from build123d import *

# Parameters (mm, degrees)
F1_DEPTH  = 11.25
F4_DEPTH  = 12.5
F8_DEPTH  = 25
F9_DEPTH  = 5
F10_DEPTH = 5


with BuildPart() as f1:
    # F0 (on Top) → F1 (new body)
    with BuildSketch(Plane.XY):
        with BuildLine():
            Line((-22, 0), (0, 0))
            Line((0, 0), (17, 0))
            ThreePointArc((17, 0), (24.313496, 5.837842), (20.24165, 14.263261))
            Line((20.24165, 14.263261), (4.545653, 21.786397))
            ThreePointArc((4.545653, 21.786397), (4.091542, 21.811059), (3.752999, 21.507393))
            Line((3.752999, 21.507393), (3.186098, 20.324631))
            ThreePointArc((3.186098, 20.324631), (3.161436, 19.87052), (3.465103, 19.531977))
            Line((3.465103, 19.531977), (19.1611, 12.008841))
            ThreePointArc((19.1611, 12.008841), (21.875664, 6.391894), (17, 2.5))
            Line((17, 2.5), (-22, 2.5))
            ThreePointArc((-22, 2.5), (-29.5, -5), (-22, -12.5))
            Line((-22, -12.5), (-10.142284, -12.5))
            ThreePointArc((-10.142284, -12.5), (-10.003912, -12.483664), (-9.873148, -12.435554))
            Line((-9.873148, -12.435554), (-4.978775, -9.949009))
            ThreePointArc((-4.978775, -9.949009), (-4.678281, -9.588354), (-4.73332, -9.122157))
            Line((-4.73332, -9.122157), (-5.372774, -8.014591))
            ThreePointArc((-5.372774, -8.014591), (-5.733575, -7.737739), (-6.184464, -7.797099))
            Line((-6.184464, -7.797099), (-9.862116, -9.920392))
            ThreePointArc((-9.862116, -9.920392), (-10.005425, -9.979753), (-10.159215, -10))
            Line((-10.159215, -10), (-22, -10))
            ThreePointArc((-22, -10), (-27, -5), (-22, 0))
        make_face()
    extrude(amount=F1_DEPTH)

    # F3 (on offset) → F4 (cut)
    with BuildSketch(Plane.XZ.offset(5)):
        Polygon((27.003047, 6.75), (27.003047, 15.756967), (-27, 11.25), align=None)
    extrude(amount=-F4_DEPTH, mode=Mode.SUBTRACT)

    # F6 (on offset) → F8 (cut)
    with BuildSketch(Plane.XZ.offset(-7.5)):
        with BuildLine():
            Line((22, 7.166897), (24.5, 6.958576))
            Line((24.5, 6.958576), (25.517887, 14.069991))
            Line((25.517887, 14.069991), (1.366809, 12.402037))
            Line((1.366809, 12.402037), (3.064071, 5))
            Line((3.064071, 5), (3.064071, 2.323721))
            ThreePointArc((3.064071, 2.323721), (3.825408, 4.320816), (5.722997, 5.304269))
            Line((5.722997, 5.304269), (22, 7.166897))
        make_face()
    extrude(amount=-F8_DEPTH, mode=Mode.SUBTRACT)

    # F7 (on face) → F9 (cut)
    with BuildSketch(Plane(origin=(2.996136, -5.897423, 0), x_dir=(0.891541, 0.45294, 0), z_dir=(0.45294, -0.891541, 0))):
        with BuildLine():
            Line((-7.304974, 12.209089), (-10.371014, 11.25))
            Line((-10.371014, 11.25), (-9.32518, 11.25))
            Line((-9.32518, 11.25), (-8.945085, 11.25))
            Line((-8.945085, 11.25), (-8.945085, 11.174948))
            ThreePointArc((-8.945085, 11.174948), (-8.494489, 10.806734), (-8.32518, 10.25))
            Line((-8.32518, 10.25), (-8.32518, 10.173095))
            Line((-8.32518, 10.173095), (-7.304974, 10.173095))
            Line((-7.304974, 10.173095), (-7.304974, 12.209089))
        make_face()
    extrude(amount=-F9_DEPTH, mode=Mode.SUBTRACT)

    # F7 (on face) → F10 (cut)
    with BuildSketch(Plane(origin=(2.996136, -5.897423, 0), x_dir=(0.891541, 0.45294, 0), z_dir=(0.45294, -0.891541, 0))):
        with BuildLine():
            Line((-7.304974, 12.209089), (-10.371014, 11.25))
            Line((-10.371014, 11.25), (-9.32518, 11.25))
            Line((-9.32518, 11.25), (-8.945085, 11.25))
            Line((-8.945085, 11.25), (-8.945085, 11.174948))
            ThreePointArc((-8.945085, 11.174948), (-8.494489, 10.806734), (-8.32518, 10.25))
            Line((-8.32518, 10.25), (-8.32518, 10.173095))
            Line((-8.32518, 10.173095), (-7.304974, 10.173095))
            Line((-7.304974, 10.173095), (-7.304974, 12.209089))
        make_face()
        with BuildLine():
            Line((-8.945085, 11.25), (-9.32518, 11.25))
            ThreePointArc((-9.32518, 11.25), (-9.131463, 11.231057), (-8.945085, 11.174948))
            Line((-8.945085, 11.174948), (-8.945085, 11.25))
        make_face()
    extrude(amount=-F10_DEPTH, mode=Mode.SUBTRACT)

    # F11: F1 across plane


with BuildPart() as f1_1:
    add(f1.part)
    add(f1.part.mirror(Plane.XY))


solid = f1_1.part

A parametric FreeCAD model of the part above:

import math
import FreeCAD as App
import Part
import Sketcher
Q = App.Units.Quantity


def add_polygon(sketch, points):
    """Adds a closed chain of lines whose ends are joined by coincident constraints."""
    first, n = sketch.GeometryCount, len(points)
    for a, b in zip(points, points[1:] + points[:1]):
        sketch.addGeometry(Part.LineSegment(App.Vector(*a, 0), App.Vector(*b, 0)), False)
    for i in range(n):
        sketch.addConstraint(Sketcher.Constraint("Coincident", first + i, 2, first + (i + 1) % n, 1))

doc = App.newDocument("Part")
body = doc.addObject("PartDesign::Body", "Body")

sketch1 = doc.addObject("Sketcher::SketchObject", "Sketch")
body.addObject(sketch1)
sketch1.AttachmentSupport = (doc.XY_Plane, [""])
sketch1.MapMode = "FlatFace"
sketch1.addGeometry([
    Part.LineSegment(App.Vector(-22, 0, 0), App.Vector(17, 0, 0)),
    Part.ArcOfCircle(Part.Circle(App.Vector(17, 7.5, 0), App.Vector(0, 0, 1), 7.5), math.radians(-89.999997), math.radians(64.391467)),
    Part.LineSegment(App.Vector(20.24165, 14.263261, 0), App.Vector(4.545653, 21.786397, 0)),
    Part.ArcOfCircle(Part.Circle(App.Vector(4.288828, 21.250568, 0), App.Vector(0, 0, 1), 0.594198), math.radians(64.391387), math.radians(154.391437)),
    Part.LineSegment(App.Vector(3.752999, 21.507393, 0), App.Vector(3.186098, 20.324631, 0)),
    Part.ArcOfCircle(Part.Circle(App.Vector(3.721926, 20.067806, 0), App.Vector(0, 0, 1), 0.594197), math.radians(154.391357), math.radians(244.391595)),
    Part.LineSegment(App.Vector(3.465103, 19.531977, 0), App.Vector(19.1611, 12.008841, 0)),
    Part.ArcOfCircle(Part.Circle(App.Vector(17, 7.5, 0), App.Vector(0, 0, 1), 5), math.radians(-89.999997), math.radians(64.391468)),
    Part.LineSegment(App.Vector(17, 2.5, 0), App.Vector(-22, 2.5, 0)),
    Part.ArcOfCircle(Part.Circle(App.Vector(-22, -5, 0), App.Vector(0, 0, 1), 7.5), math.radians(90), math.radians(270)),
    Part.LineSegment(App.Vector(-22, -12.5, 0), App.Vector(-10.142284, -12.5, 0)),
    Part.ArcOfCircle(Part.Circle(App.Vector(-10.142284, -11.905802, 0), App.Vector(0, 0, 1), 0.594198), math.radians(-90.000008), math.radians(-63.067568)),
    Part.LineSegment(App.Vector(-9.873148, -12.435554, 0), App.Vector(-4.978775, -9.949009, 0)),
    Part.ArcOfCircle(Part.Circle(App.Vector(-5.24791, -9.419257, 0), App.Vector(0, 0, 1), 0.594198), math.radians(-63.067632), math.radians(30.000082)),
    Part.LineSegment(App.Vector(-4.73332, -9.122157, 0), App.Vector(-5.372774, -8.014591, 0)),
    Part.ArcOfCircle(Part.Circle(App.Vector(-5.887365, -8.311692, 0), App.Vector(0, 0, 1), 0.5942), math.radians(30.000096), math.radians(119.999862)),
    Part.LineSegment(App.Vector(-6.184464, -7.797099, 0), App.Vector(-9.862116, -9.920392, 0)),
    Part.ArcOfCircle(Part.Circle(App.Vector(-10.159215, -9.405806, 0), App.Vector(0, 0, 1), 0.594194), math.radians(-89.999999), math.radians(-59.999798)),
    Part.LineSegment(App.Vector(-10.159215, -10, 0), App.Vector(-22, -10, 0)),
    Part.ArcOfCircle(Part.Circle(App.Vector(-22, -5, 0), App.Vector(0, 0, 1), 5), math.radians(90), math.radians(270)),
], False)
sketch1.addConstraint([
    Sketcher.Constraint("Tangent", 0, 2, 1, 1),
    Sketcher.Constraint("Tangent", 1, 2, 2, 1),
    Sketcher.Constraint("Tangent", 2, 2, 3, 1),
    Sketcher.Constraint("Tangent", 3, 2, 4, 1),
    Sketcher.Constraint("Coincident", 4, 2, 5, 1),
    Sketcher.Constraint("Coincident", 5, 2, 6, 1),
    Sketcher.Constraint("Tangent", 6, 2, 7, 2),
    Sketcher.Constraint("Tangent", 7, 1, 8, 1),
    Sketcher.Constraint("Tangent", 8, 2, 9, 1),
    Sketcher.Constraint("Tangent", 9, 2, 10, 1),
    Sketcher.Constraint("Tangent", 10, 2, 11, 1),
    Sketcher.Constraint("Tangent", 11, 2, 12, 1),
    Sketcher.Constraint("Tangent", 12, 2, 13, 1),
    Sketcher.Constraint("Tangent", 13, 2, 14, 1),
    Sketcher.Constraint("Tangent", 14, 2, 15, 1),
    Sketcher.Constraint("Coincident", 15, 2, 16, 1),
    Sketcher.Constraint("Coincident", 16, 2, 17, 2),
    Sketcher.Constraint("Tangent", 17, 1, 18, 1),
    Sketcher.Constraint("Tangent", 18, 2, 19, 2),
    Sketcher.Constraint("Tangent", 19, 1, 0, 1),
    Sketcher.Constraint("Horizontal", 0),
    Sketcher.Constraint("Horizontal", 8),
    Sketcher.Constraint("Horizontal", 10),
    Sketcher.Constraint("Horizontal", 18),
    Sketcher.Constraint("Coincident", 7, 3, 1, 3),
    Sketcher.Constraint("Coincident", 19, 3, 9, 3),
    Sketcher.Constraint("Equal", 3, 5),
    Sketcher.Constraint("Equal", 1, 9),
    Sketcher.Constraint("Equal", 5, 11),
    Sketcher.Constraint("Equal", 11, 13),
    Sketcher.Constraint("Equal", 13, 15),
    Sketcher.Constraint("PointOnObject", 0, 2, -1),
    Sketcher.Constraint("Perpendicular", 2, 4),
    Sketcher.Constraint("Perpendicular", 4, 6),
    Sketcher.Constraint("Perpendicular", 14, 16),
    Sketcher.Constraint("Equal", 2, 6),
    Sketcher.Constraint("Radius", 7, Q("5 mm")),
    Sketcher.Constraint("Radius", 1, Q("7.5 mm")),
    Sketcher.Constraint("DistanceX", 0, 1, 0, 2, Q("39 mm")),
    Sketcher.Constraint("Angle", 14, Q("120.000018 deg")),
    Sketcher.Constraint("DistanceX", -1, 1, 1, 3, Q("17 mm")),
    Sketcher.Constraint("Radius", 3, Q("0.594198 mm")),
    Sketcher.Constraint("DistanceX", -1, 1, 3, 2, Q("3.752999 mm")),
    Sketcher.Constraint("Radius", 17, Q("0.594194 mm")),
    Sketcher.Constraint("DistanceX", 14, 2, 12, 2, Q("0.393999 mm")),
    Sketcher.Constraint("Distance", 2, Q("17.405801 mm")),
    Sketcher.Constraint("DistanceY", 15, 2, -1, 1, Q("7.797099 mm")),
    Sketcher.Constraint("DistanceX", 4, 2, 3, 2, Q("0.566901 mm")),
    Sketcher.Constraint("DistanceX", 15, 2, 15, 3, Q("0.297099 mm")),
    Sketcher.Constraint("DistanceX", 17, 3, 16, 2, Q("0.297099 mm")),
    Sketcher.Constraint("Distance", 12, Q("5.48979 mm")),
    Sketcher.Constraint("DistanceX", 10, 1, 10, 2, Q("11.857716 mm")),
])
pad1 = doc.addObject("PartDesign::Pad", "Pad")
body.addObject(pad1)
pad1.Profile = sketch1
pad1.Length = 11.25

sketch2 = doc.addObject("Sketcher::SketchObject", "Sketch001")
body.addObject(sketch2)
sketch2.AttachmentSupport = (doc.XZ_Plane, [""])
sketch2.MapMode = "FlatFace"
sketch2.AttachmentOffset = App.Placement(App.Vector(0, 0, 5), App.Rotation())
add_polygon(sketch2, [(27.003047, 6.75), (27.003047, 15.756967), (-27, 11.25)])
sketch2.addConstraint([
    Sketcher.Constraint("Vertical", 0),
    Sketcher.Constraint("DistanceX", 1, 2, -1, 1, Q("27 mm")),
    Sketcher.Constraint("DistanceY", 2, 2, 1, 2, Q("4.5 mm")),
    Sketcher.Constraint("DistanceY", -1, 1, 1, 2, Q("11.25 mm")),
    Sketcher.Constraint("Distance", 1, Q("54.190791 mm")),
    Sketcher.Constraint("DistanceY", 0, 1, 0, 2, Q("9.006967 mm")),
])
pocket1 = doc.addObject("PartDesign::Pocket", "Pocket")
body.addObject(pocket1)
pocket1.Profile = sketch2
pocket1.Length = 12.5

sketch3 = doc.addObject("Sketcher::SketchObject", "Sketch002")
body.addObject(sketch3)
sketch3.AttachmentSupport = (doc.XZ_Plane, [""])
sketch3.MapMode = "FlatFace"
sketch3.AttachmentOffset = App.Placement(App.Vector(0, 0, -7.5), App.Rotation())
sketch3.addGeometry([
    Part.LineSegment(App.Vector(22, 7.166897, 0), App.Vector(24.5, 6.958576, 0)),
    Part.LineSegment(App.Vector(24.5, 6.958576, 0), App.Vector(25.517887, 14.069991, 0)),
    Part.LineSegment(App.Vector(25.517887, 14.069991, 0), App.Vector(1.366809, 12.402037, 0)),
    Part.LineSegment(App.Vector(1.366809, 12.402037, 0), App.Vector(3.064071, 5, 0)),
    Part.LineSegment(App.Vector(3.064071, 5, 0), App.Vector(3.064071, 2.323721, 0)),
    Part.ArcOfCircle(Part.Circle(App.Vector(6.06407, 2.323721, 0), App.Vector(0, 0, 1), 2.999999), math.radians(96.528133), math.radians(180.000009)),
    Part.LineSegment(App.Vector(5.722997, 5.304269, 0), App.Vector(22, 7.166897, 0)),
], False)
sketch3.addConstraint([
    Sketcher.Constraint("Coincident", 0, 2, 1, 1),
    Sketcher.Constraint("Coincident", 1, 2, 2, 1),
    Sketcher.Constraint("Coincident", 2, 2, 3, 1),
    Sketcher.Constraint("Coincident", 3, 2, 4, 1),
    Sketcher.Constraint("Tangent", 4, 2, 5, 2),
    Sketcher.Constraint("Tangent", 5, 1, 6, 1),
    Sketcher.Constraint("Coincident", 6, 2, 0, 1),
    Sketcher.Constraint("Vertical", 4),
    Sketcher.Constraint("Radius", 5, Q("2.999999 mm")),
    Sketcher.Constraint("DistanceY", -1, 1, 3, 2, Q("5 mm")),
    Sketcher.Constraint("DistanceX", -1, 1, 6, 2, Q("22 mm")),
    Sketcher.Constraint("DistanceX", -1, 1, 0, 2, Q("24.5 mm")),
    Sketcher.Constraint("DistanceY", 4, 2, 4, 1, Q("2.676279 mm")),
    Sketcher.Constraint("Distance", 6, Q("16.38323 mm")),
    Sketcher.Constraint("DistanceX", -1, 1, 5, 3, Q("6.06407 mm")),
    Sketcher.Constraint("DistanceY", -1, 1, 1, 2, Q("14.069991 mm")),
    Sketcher.Constraint("DistanceX", -1, 1, 2, 2, Q("1.366809 mm")),
    Sketcher.Constraint("DistanceY", 0, 2, 2, 2, Q("5.443461 mm")),
    Sketcher.Constraint("DistanceX", 2, 2, 1, 2, Q("24.151078 mm")),
    Sketcher.Constraint("DistanceY", 0, 2, 6, 2, Q("0.208321 mm")),
])
pocket2 = doc.addObject("PartDesign::Pocket", "Pocket001")
body.addObject(pocket2)
pocket2.Profile = sketch3
pocket2.Length = 25

sketch4 = doc.addObject("Sketcher::SketchObject", "Sketch003")
body.addObject(sketch4)
sketch4.Placement = App.Placement(App.Vector(2.996136, -5.897423, 0), App.Rotation(App.Vector(0.891541001, 0.45294, 0), App.Vector(0, 0, 1), App.Vector(0.45294, -0.891541001, 0), "ZXY"))
sketch4.addGeometry([
    Part.LineSegment(App.Vector(-7.304974, 12.209089, 0), App.Vector(-10.371014, 11.25, 0)),
    Part.LineSegment(App.Vector(-10.371014, 11.25, 0), App.Vector(-8.945085, 11.25, 0)),
    Part.LineSegment(App.Vector(-8.945085, 11.25, 0), App.Vector(-8.945085, 11.174948, 0)),
    Part.ArcOfCircle(Part.Circle(App.Vector(-9.325181, 10.25, 0), App.Vector(0, 0, 1), 1.000001), math.radians(-0.000001), math.radians(67.660402)),
    Part.LineSegment(App.Vector(-8.32518, 10.25, 0), App.Vector(-8.32518, 10.173095, 0)),
    Part.LineSegment(App.Vector(-8.32518, 10.173095, 0), App.Vector(-7.304974, 10.173095, 0)),
    Part.LineSegment(App.Vector(-7.304974, 10.173095, 0), App.Vector(-7.304974, 12.209089, 0)),
], False)
sketch4.addConstraint([
    Sketcher.Constraint("Coincident", 0, 2, 1, 1),
    Sketcher.Constraint("Coincident", 1, 2, 2, 1),
    Sketcher.Constraint("Coincident", 2, 2, 3, 2),
    Sketcher.Constraint("Tangent", 3, 1, 4, 1),
    Sketcher.Constraint("Coincident", 4, 2, 5, 1),
    Sketcher.Constraint("Coincident", 5, 2, 6, 1),
    Sketcher.Constraint("Coincident", 6, 2, 0, 1),
    Sketcher.Constraint("Horizontal", 1),
    Sketcher.Constraint("Vertical", 2),
    Sketcher.Constraint("Vertical", 4),
    Sketcher.Constraint("Horizontal", 5),
    Sketcher.Constraint("Vertical", 6),
    Sketcher.Constraint("Radius", 3, Q("1.000001 mm")),
    Sketcher.Constraint("DistanceY", 3, 3, 0, 2, Q("1 mm")),
    Sketcher.Constraint("DistanceY", -1, 1, 3, 3, Q("10.25 mm")),
    Sketcher.Constraint("DistanceX", 1, 1, 1, 2, Q("1.425929 mm")),
    Sketcher.Constraint("DistanceY", 2, 2, 2, 1, Q("0.075052 mm")),
    Sketcher.Constraint("DistanceX", 5, 1, 5, 2, Q("1.020206 mm")),
    Sketcher.Constraint("DistanceY", 4, 2, 4, 1, Q("0.076905 mm")),
    Sketcher.Constraint("DistanceY", 6, 1, 6, 2, Q("2.035994 mm")),
    Sketcher.Constraint("DistanceX", 3, 3, -1, 1, Q("9.325181 mm")),
])
pocket3 = doc.addObject("PartDesign::Pocket", "Pocket002")
body.addObject(pocket3)
pocket3.Profile = sketch4
pocket3.Length = 5

sketch5 = doc.addObject("Sketcher::SketchObject", "Sketch004")
body.addObject(sketch5)
sketch5.Placement = App.Placement(App.Vector(2.996136, -5.897423, 0), App.Rotation(App.Vector(0.891541001, 0.45294, 0), App.Vector(0, 0, 1), App.Vector(0.45294, -0.891541001, 0), "ZXY"))
sketch5.addGeometry([
    Part.LineSegment(App.Vector(-7.304974, 12.209089, 0), App.Vector(-10.371014, 11.25, 0)),
    Part.LineSegment(App.Vector(-10.371014, 11.25, 0), App.Vector(-9.32518, 11.25, 0)),
    Part.ArcOfCircle(Part.Circle(App.Vector(-9.325186, 10.249964, 0), App.Vector(0, 0, 1), 1.000036), math.radians(67.660926), math.radians(89.999665)),
    Part.ArcOfCircle(Part.Circle(App.Vector(-9.325181, 10.25, 0), App.Vector(0, 0, 1), 1.000001), math.radians(-0.000001), math.radians(67.660402)),
    Part.LineSegment(App.Vector(-8.32518, 10.25, 0), App.Vector(-8.32518, 10.173095, 0)),
    Part.LineSegment(App.Vector(-8.32518, 10.173095, 0), App.Vector(-7.304974, 10.173095, 0)),
    Part.LineSegment(App.Vector(-7.304974, 10.173095, 0), App.Vector(-7.304974, 12.209089, 0)),
], False)
sketch5.addConstraint([
    Sketcher.Constraint("Coincident", 0, 2, 1, 1),
    Sketcher.Constraint("Coincident", 1, 2, 2, 2),
    Sketcher.Constraint("Coincident", 2, 1, 3, 2),
    Sketcher.Constraint("Tangent", 3, 1, 4, 1),
    Sketcher.Constraint("Coincident", 4, 2, 5, 1),
    Sketcher.Constraint("Coincident", 5, 2, 6, 1),
    Sketcher.Constraint("Coincident", 6, 2, 0, 1),
    Sketcher.Constraint("Horizontal", 1),
    Sketcher.Constraint("Vertical", 4),
    Sketcher.Constraint("Horizontal", 5),
    Sketcher.Constraint("Vertical", 6),
    Sketcher.Constraint("Vertical", 3, 3, 1, 2),
    Sketcher.Constraint("Radius", 3, Q("1.000001 mm")),
    Sketcher.Constraint("DistanceY", 3, 3, 0, 2, Q("1 mm")),
    Sketcher.Constraint("DistanceY", -1, 1, 3, 3, Q("10.25 mm")),
    Sketcher.Constraint("Radius", 2, Q("1.000036 mm")),
    Sketcher.Constraint("DistanceX", 2, 3, 2, 1, Q("0.380101 mm")),
    Sketcher.Constraint("DistanceX", 1, 1, 1, 2, Q("1.045834 mm")),
    Sketcher.Constraint("DistanceX", 5, 1, 5, 2, Q("1.020206 mm")),
    Sketcher.Constraint("DistanceY", 4, 2, 4, 1, Q("0.076905 mm")),
    Sketcher.Constraint("DistanceY", 6, 1, 6, 2, Q("2.035994 mm")),
    Sketcher.Constraint("DistanceX", 3, 3, -1, 1, Q("9.325181 mm")),
])
pocket4 = doc.addObject("PartDesign::Pocket", "Pocket003")
body.addObject(pocket4)
pocket4.Profile = sketch5
pocket4.Length = 5
body2 = doc.addObject("PartDesign::Body", "Body001")
doc.recompute()

body2.BaseFeature = body
doc.recompute()

mirroring = doc.addObject("Part::Mirroring", "Mirroring")
mirroring.Source = body
mirroring.Base = App.Vector(0, 0, 0)
mirroring.Normal = App.Vector(0, 0, 1)
body3 = doc.addObject("PartDesign::Body", "Body002")
body3.BaseFeature = mirroring
boolean = doc.addObject("PartDesign::Boolean", "Boolean")
body2.addObject(boolean)
boolean.Type = "Fuse"
boolean.addObjects([body3])
doc.recompute()
mirroring.Visibility = False

doc.recompute()
